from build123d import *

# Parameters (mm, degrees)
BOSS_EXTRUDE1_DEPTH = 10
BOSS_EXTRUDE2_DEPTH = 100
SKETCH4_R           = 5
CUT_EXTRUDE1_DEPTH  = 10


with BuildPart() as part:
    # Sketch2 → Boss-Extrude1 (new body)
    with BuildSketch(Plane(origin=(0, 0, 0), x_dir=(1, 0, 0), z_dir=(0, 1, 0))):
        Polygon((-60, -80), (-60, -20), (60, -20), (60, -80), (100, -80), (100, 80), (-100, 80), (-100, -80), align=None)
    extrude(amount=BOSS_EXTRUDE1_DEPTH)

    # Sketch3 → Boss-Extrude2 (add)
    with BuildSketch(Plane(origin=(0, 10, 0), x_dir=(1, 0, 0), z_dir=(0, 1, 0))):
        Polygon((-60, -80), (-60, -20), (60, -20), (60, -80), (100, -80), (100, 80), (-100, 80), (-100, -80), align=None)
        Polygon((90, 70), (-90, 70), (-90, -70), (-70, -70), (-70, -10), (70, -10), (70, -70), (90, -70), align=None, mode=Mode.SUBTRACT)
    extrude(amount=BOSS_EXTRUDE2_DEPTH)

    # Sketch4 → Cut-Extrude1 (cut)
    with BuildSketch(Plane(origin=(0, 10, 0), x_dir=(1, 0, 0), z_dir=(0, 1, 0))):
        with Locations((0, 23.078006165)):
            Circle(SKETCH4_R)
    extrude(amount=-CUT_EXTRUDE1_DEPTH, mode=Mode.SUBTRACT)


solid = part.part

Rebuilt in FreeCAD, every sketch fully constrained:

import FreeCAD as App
import Part
import Sketcher

V = App.Vector
Q = App.Units.Quantity

doc = App.newDocument("Part")
body = doc.addObject("PartDesign::Body", "Body")

# Sketch on XZ plane
sketch1 = body.newObject("Sketcher::SketchObject", "Sketch")
sketch1.AttachmentSupport = (doc.getObject("XZ_Plane"), [""])
sketch1.MapMode = "FlatFace"
sketch1.addGeometry([
    Part.LineSegment(V(-60, 80, 0), V(-60, 20, 0)),  # 0
    Part.LineSegment(V(-60, 20, 0), V(60, 20, 0)),  # 1
    Part.LineSegment(V(60, 20, 0), V(60, 80, 0)),  # 2
    Part.LineSegment(V(60, 80, 0), V(100, 80, 0)),  # 3
    Part.LineSegment(V(100, 80, 0), V(100, -80, 0)),  # 4
    Part.LineSegment(V(100, -80, 0), V(-100, -80, 0)),  # 5
    Part.LineSegment(V(-100, -80, 0), V(-100, 80, 0)),  # 6
    Part.LineSegment(V(-100, 80, 0), V(-60, 80, 0)),  # 7
], False)
sketch1.addConstraint([
    Sketcher.Constraint("Coincident", 0, 2, 1, 1),
    Sketcher.Constraint("Coincident", 1, 2, 2, 1),
    Sketcher.Constraint("Coincident", 2, 2, 3, 1),
    Sketcher.Constraint("Coincident", 3, 2, 4, 1),
    Sketcher.Constraint("Coincident", 4, 2, 5, 1),
    Sketcher.Constraint("Coincident", 5, 2, 6, 1),
    Sketcher.Constraint("Coincident", 6, 2, 7, 1),
    Sketcher.Constraint("Coincident", 7, 2, 0, 1),
    Sketcher.Constraint("Vertical", 0),
    Sketcher.Constraint("Horizontal", 1),
    Sketcher.Constraint("Vertical", 2),
    Sketcher.Constraint("Horizontal", 3),
    Sketcher.Constraint("Vertical", 4),
    Sketcher.Constraint("Horizontal", 5),
    Sketcher.Constraint("Vertical", 6),
    Sketcher.Constraint("Horizontal", 7),
    Sketcher.Constraint("Symmetric", 3, 2, 5, 2, -1, 1),
    Sketcher.Constraint("Symmetric", 2, 2, 7, 2, -2),
    Sketcher.Constraint("DistanceX", 1, 1, 1, 2, Q("120 mm")),
    Sketcher.Constraint("DistanceX", 3, 1, 3, 2, Q("40 mm")),
    Sketcher.Constraint("DistanceY", 0, 2, 0, 1, Q("60 mm")),
    Sketcher.Constraint("DistanceY", 4, 2, 4, 1, Q("160 mm")),
])
pad1 = body.newObject("PartDesign::Pad", "Pad")
pad1.Profile = sketch1
pad1.Length = 10
pad1.Reversed = True

# Sketch on XZ plane
sketch2 = body.newObject("Sketcher::SketchObject", "Sketch001")
sketch2.AttachmentSupport = (doc.getObject("XZ_Plane"), [""])
sketch2.MapMode = "FlatFace"
sketch2.AttachmentOffset = App.Placement(V(0, 0, -10), App.Rotation())
sketch2.addGeometry([
    Part.LineSegment(V(-60, 80, 0), V(-60, 20, 0)),  # 0
    Part.LineSegment(V(-60, 20, 0), V(60, 20, 0)),  # 1
    Part.LineSegment(V(60, 20, 0), V(60, 80, 0)),  # 2
    Part.LineSegment(V(60, 80, 0), V(100, 80, 0)),  # 3
    Part.LineSegment(V(100, 80, 0), V(100, -80, 0)),  # 4
    Part.LineSegment(V(100, -80, 0), V(-100, -80, 0)),  # 5
    Part.LineSegment(V(-100, -80, 0), V(-100, 80, 0)),  # 6
    Part.LineSegment(V(-100, 80, 0), V(-60, 80, 0)),  # 7
    Part.LineSegment(V(-90, -70, 0), V(90, -70, 0)),  # 8
    Part.LineSegment(V(90, -70, 0), V(90, 70, 0)),  # 9
    Part.LineSegment(V(90, 70, 0), V(70, 70, 0)),  # 10
    Part.LineSegment(V(70, 70, 0), V(70, 10, 0)),  # 11
    Part.LineSegment(V(70, 10, 0), V(-70, 10, 0)),  # 12
    Part.LineSegment(V(-70, 10, 0), V(-70, 70, 0)),  # 13
    Part.LineSegment(V(-70, 70, 0), V(-90, 70, 0)),  # 14
    Part.LineSegment(V(-90, 70, 0), V(-90, -70, 0)),  # 15
], False)
sketch2.addConstraint([
    Sketcher.Constraint("Coincident", 0, 2, 1, 1),
    Sketcher.Constraint("Coincident", 1, 2, 2, 1),
    Sketcher.Constraint("Coincident", 2, 2, 3, 1),
    Sketcher.Constraint("Coincident", 3, 2, 4, 1),
    Sketcher.Constraint("Coincident", 4, 2, 5, 1),
    Sketcher.Constraint("Coincident", 5, 2, 6, 1),
    Sketcher.Constraint("Coincident", 6, 2, 7, 1),
    Sketcher.Constraint("Coincident", 7, 2, 0, 1),
    Sketcher.Constraint("Coincident", 8, 2, 9, 1),
    Sketcher.Constraint("Coincident", 9, 2, 10, 1),
    Sketcher.Constraint("Coincident", 10, 2, 11, 1),
    Sketcher.Constraint("Coincident", 11, 2, 12, 1),
    Sketcher.Constraint("Coincident", 12, 2, 13, 1),
    Sketcher.Constraint("Coincident", 13, 2, 14, 1),
    Sketcher.Constraint("Coincident", 14, 2, 15, 1),
    Sketcher.Constraint("Coincident", 15, 2, 8, 1),
    Sketcher.Constraint("Vertical", 0),
    Sketcher.Constraint("Horizontal", 1),
    Sketcher.Constraint("Vertical", 2),
    Sketcher.Constraint("Horizontal", 3),
    Sketcher.Constraint("Vertical", 4),
    Sketcher.Constraint("Horizontal", 5),
    Sketcher.Constraint("Vertical", 6),
    Sketcher.Constraint("Horizontal", 7),
    Sketcher.Constraint("Horizontal", 8),
    Sketcher.Constraint("Vertical", 9),
    Sketcher.Constraint("Horizontal", 10),
    Sketcher.Constraint("Vertical", 11),
    Sketcher.Constraint("Horizontal", 12),
    Sketcher.Constraint("Vertical", 13),
    Sketcher.Constraint("Horizontal", 14),
    Sketcher.Constraint("Vertical", 15),
    Sketcher.Constraint("Symmetric", 3, 2, 5, 2, -1, 1),
    Sketcher.Constraint("Symmetric", 8, 2, 14, 2, -1, 1),
    Sketcher.Constraint("Symmetric", 2, 2, 7, 2, -2),
    Sketcher.Constraint("Symmetric", 10, 2, 13, 2, -2),
    Sketcher.Constraint("Equal", 12, 9),
    Sketcher.Constraint("Equal", 2, 11),
    Sketcher.Constraint("DistanceX", 1, 1, 1, 2, Q("120 mm")),
    Sketcher.Constraint("DistanceX", 3, 1, 3, 2, Q("40 mm")),
    Sketcher.Constraint("DistanceX", 8, 1, 8, 2, Q("180 mm")),
    Sketcher.Constraint("DistanceX", 10, 2, 10, 1, Q("20 mm")),
    Sketcher.Constraint("DistanceY", 0, 2, 0, 1, Q("60 mm")),
    Sketcher.Constraint("DistanceY", 4, 2, 4, 1, Q("160 mm")),
])
pad2 = body.newObject("PartDesign::Pad", "Pad001")
pad2.Profile = sketch2
pad2.Length = 100
pad2.Reversed = True

# Sketch on XZ plane
sketch3 = body.newObject("Sketcher::SketchObject", "Sketch002")
sketch3.AttachmentSupport = (doc.getObject("XZ_Plane"), [""])
sketch3.MapMode = "FlatFace"
sketch3.AttachmentOffset = App.Placement(V(0, 0, -10), App.Rotation())
sketch3.addGeometry(Part.Circle(V(0, -23, 0), V(0, 0, 1), 5), False)
sketch3.addConstraint([
    Sketcher.Constraint("PointOnObject", 0, 3, -2),
    Sketcher.Constraint("Diameter", 0, Q("10 mm")),
    Sketcher.Constraint("DistanceY", 0, 3, -1, 1, Q("23.078006 mm")),
])
pocket1 = body.newObject("PartDesign::Pocket", "Pocket")
pocket1.Profile = sketch3
pocket1.Length = 10
pocket1.Reversed = True

doc.recompute()
